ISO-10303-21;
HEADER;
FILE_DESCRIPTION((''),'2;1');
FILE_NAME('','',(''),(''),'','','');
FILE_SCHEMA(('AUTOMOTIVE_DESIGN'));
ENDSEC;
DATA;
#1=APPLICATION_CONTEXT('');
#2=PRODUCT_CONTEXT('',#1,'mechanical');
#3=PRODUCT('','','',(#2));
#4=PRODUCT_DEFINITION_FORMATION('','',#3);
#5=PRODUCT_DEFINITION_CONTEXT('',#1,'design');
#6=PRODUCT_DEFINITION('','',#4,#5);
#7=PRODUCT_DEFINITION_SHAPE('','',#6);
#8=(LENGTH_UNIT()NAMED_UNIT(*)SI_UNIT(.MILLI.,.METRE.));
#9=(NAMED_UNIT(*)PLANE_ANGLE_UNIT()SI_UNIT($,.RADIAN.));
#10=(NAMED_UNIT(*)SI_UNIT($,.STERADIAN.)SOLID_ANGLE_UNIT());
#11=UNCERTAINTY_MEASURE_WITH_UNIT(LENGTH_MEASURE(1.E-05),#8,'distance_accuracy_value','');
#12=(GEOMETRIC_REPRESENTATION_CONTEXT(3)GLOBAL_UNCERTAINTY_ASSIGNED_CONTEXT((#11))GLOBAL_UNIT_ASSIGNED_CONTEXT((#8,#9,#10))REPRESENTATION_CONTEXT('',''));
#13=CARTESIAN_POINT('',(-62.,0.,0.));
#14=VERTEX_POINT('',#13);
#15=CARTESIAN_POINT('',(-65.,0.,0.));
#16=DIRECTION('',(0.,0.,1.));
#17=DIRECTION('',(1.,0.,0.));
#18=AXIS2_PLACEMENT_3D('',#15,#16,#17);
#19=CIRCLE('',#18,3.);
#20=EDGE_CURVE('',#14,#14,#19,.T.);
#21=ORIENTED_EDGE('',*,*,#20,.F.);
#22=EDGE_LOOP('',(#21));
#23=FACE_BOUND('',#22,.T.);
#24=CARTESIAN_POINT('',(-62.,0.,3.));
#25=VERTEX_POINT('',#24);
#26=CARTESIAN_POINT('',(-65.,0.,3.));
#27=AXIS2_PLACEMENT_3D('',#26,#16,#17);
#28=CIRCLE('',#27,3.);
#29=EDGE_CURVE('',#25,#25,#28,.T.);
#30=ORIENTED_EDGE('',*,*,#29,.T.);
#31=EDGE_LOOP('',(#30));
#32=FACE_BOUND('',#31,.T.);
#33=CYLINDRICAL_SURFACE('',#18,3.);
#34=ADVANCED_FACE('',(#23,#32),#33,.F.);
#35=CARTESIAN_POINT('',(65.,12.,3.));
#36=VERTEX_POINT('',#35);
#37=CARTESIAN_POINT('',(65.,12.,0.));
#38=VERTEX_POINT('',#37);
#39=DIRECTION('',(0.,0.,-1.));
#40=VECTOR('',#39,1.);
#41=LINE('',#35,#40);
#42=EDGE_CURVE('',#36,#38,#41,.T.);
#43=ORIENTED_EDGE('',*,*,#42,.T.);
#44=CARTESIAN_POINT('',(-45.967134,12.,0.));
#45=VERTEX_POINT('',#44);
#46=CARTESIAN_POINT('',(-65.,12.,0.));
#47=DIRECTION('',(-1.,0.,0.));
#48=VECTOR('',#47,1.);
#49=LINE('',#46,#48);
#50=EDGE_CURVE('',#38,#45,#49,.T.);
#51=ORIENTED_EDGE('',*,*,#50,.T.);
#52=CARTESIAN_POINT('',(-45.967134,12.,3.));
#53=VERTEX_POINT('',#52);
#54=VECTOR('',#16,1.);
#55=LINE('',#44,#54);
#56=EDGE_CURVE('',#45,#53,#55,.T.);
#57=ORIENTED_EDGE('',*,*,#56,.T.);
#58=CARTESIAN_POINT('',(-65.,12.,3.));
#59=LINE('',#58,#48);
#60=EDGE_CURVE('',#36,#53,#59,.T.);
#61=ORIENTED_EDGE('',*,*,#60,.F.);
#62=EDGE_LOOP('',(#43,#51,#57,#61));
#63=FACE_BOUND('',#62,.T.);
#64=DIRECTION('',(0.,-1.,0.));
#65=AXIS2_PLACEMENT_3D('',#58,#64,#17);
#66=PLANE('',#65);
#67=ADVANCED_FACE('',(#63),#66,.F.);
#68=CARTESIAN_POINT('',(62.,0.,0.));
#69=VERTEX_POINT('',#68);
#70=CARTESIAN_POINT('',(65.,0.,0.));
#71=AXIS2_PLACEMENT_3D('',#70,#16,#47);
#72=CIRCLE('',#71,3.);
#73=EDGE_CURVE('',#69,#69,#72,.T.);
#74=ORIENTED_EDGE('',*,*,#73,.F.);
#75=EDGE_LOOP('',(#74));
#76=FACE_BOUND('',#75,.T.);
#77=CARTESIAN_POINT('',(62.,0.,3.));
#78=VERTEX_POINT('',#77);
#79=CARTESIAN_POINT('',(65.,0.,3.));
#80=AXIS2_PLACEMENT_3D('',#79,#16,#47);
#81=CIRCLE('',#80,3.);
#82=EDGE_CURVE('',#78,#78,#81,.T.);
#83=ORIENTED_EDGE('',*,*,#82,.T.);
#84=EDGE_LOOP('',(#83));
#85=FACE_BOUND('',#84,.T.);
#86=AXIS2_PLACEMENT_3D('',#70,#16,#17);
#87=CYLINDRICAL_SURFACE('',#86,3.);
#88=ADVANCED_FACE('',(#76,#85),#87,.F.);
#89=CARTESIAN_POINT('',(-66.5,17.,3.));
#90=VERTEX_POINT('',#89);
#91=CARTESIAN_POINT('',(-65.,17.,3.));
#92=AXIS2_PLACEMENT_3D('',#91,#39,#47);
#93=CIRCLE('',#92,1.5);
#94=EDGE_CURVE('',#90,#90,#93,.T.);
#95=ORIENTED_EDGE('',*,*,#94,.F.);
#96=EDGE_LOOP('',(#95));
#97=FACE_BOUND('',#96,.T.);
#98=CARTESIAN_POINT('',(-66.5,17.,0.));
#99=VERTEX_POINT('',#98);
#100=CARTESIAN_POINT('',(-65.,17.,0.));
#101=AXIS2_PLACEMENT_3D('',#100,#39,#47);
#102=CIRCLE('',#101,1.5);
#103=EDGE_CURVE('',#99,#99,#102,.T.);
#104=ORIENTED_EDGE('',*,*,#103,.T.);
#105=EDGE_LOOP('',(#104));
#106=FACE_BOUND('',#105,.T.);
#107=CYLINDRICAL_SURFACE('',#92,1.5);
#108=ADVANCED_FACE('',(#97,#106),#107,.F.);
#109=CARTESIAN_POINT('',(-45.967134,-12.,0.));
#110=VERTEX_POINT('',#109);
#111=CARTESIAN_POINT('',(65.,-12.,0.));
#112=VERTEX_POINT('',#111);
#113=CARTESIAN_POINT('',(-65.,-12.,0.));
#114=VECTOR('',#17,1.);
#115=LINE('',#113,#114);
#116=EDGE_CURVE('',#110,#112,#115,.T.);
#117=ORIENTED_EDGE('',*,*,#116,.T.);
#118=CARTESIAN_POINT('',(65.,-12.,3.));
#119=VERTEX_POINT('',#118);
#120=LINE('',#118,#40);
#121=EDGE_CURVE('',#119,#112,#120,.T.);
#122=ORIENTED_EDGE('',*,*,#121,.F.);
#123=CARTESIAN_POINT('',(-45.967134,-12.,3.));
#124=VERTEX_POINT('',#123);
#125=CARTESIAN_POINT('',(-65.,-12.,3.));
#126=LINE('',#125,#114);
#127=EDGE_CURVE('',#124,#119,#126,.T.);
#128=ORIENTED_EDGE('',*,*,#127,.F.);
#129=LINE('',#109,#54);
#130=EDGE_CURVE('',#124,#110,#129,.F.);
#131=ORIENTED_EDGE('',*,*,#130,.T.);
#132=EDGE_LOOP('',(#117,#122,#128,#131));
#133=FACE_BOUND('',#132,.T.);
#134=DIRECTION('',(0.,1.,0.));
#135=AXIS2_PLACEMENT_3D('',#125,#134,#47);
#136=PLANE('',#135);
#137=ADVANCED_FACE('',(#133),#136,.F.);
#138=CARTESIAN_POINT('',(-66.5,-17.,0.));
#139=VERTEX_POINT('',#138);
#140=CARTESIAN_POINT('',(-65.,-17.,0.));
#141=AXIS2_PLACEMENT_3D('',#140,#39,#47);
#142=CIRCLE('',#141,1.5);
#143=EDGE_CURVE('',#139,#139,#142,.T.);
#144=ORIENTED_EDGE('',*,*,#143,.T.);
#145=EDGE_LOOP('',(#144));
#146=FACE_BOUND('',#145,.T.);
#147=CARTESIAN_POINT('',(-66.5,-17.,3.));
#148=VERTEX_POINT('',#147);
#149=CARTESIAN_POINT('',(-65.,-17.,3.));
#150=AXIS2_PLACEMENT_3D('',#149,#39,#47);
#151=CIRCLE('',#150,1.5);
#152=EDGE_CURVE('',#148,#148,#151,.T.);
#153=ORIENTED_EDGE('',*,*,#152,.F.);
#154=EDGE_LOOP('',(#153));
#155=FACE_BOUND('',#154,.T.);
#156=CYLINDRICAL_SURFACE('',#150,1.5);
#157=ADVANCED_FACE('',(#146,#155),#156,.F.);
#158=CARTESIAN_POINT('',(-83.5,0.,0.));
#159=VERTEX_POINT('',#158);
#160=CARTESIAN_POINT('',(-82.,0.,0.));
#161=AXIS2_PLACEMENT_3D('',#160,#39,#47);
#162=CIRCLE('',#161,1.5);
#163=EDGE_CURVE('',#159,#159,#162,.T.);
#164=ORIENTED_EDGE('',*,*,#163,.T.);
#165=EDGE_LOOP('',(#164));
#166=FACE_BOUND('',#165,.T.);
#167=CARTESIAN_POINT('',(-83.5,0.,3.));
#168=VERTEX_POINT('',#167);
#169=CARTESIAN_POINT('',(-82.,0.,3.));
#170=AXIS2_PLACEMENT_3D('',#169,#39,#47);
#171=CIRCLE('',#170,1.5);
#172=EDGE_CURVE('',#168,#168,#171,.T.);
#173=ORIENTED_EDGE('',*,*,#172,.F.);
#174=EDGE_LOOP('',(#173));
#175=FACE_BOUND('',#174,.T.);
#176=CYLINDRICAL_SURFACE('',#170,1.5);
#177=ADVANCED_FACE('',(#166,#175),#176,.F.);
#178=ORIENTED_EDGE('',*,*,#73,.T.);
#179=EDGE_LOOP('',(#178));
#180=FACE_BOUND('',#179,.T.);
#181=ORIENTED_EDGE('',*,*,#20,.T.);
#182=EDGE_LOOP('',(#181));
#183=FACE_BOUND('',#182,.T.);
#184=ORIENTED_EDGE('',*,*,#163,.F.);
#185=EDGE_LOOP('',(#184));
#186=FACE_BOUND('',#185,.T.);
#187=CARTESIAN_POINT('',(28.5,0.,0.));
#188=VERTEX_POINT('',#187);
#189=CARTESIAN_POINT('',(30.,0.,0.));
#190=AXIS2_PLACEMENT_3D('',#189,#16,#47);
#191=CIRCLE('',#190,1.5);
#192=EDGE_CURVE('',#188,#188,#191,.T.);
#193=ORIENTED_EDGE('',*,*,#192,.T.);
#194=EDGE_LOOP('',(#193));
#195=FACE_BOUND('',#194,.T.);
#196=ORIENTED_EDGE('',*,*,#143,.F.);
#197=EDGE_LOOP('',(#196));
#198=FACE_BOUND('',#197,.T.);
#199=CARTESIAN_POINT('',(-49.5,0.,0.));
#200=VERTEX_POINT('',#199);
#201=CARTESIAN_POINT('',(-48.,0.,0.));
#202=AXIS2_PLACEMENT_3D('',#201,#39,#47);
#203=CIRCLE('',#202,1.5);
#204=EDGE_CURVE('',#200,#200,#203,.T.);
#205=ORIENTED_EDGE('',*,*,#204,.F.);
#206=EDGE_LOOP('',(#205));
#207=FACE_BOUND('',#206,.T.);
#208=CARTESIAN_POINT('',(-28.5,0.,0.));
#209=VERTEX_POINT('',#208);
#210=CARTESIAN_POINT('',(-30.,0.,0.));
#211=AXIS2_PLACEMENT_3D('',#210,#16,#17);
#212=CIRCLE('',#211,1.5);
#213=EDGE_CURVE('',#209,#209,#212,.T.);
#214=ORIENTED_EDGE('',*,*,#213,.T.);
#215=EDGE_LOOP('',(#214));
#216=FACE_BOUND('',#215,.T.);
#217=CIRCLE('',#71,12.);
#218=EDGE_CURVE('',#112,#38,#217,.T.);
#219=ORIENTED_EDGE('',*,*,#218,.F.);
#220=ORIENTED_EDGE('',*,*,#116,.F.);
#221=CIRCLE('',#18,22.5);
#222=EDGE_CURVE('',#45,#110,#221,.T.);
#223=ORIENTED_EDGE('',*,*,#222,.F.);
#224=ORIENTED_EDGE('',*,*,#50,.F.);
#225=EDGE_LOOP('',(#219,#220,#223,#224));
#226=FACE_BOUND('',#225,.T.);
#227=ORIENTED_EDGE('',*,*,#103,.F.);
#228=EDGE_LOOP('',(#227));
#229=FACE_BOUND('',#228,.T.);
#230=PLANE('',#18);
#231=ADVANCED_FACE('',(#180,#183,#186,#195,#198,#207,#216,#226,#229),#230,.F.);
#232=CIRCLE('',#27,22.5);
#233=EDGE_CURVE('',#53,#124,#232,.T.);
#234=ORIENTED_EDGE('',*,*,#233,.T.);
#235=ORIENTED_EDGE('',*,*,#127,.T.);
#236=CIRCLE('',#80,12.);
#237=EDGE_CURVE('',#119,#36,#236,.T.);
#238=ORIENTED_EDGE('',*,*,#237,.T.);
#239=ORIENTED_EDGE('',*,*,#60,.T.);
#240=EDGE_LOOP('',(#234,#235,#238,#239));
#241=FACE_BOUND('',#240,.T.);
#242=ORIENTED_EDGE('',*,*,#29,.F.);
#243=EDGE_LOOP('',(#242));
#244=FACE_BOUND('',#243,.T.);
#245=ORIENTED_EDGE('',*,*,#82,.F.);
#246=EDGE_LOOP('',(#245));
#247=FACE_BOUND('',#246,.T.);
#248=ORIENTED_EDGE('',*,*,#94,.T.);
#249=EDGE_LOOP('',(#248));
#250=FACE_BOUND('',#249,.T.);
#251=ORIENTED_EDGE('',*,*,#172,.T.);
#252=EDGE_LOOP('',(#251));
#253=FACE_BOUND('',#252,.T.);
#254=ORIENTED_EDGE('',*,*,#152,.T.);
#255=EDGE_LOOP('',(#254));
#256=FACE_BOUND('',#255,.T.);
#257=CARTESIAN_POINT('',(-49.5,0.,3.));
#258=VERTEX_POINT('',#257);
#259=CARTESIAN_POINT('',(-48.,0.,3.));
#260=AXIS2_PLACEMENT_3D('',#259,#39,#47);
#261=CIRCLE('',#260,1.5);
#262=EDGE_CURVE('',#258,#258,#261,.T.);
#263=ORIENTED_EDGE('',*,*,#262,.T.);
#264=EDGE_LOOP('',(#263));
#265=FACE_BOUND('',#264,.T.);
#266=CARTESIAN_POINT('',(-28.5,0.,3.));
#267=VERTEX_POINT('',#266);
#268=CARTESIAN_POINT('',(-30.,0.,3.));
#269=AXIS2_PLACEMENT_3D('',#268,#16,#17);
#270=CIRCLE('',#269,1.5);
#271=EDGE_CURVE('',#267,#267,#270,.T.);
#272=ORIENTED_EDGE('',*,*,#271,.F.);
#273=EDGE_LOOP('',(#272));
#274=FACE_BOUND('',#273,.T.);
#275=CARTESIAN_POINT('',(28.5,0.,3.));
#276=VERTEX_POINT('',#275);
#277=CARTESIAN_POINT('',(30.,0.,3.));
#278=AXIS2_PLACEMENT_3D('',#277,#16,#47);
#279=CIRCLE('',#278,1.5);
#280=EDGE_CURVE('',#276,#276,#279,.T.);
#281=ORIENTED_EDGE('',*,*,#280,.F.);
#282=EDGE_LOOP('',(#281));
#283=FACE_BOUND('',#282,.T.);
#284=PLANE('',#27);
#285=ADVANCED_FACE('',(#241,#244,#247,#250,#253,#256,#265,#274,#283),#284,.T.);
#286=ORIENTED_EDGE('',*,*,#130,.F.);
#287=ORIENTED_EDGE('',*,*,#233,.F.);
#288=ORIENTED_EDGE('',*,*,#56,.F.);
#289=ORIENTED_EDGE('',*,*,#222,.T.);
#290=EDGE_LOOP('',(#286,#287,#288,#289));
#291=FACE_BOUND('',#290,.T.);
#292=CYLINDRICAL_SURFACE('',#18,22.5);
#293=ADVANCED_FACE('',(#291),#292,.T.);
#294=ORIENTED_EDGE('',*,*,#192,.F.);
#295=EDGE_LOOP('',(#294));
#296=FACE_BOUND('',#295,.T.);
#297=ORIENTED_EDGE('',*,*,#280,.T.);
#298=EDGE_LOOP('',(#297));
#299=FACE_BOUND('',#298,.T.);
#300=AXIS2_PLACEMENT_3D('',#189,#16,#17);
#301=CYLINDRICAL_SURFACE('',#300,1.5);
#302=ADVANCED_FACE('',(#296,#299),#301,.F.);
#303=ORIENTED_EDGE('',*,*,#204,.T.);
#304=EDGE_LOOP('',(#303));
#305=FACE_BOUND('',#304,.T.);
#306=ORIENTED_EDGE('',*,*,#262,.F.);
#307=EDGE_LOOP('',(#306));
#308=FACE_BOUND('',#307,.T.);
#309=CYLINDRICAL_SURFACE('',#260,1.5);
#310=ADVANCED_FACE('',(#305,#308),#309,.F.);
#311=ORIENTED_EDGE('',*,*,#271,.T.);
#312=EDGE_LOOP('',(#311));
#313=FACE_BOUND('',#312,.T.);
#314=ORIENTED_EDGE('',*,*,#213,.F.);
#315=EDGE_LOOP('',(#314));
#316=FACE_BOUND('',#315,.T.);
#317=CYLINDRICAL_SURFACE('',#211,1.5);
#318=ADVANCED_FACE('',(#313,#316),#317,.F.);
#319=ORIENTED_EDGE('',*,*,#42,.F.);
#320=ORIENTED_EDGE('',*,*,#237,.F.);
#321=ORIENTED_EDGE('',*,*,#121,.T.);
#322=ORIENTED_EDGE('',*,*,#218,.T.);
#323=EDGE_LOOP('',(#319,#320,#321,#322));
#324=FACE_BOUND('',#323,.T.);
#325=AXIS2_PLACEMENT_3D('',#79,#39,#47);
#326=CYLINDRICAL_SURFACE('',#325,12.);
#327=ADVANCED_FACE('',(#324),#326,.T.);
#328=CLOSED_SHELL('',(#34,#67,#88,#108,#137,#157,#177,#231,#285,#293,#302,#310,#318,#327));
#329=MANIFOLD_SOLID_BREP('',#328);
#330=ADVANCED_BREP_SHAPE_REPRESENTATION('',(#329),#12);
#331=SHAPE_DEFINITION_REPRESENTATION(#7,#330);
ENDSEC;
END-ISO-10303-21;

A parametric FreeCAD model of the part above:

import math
import FreeCAD as App
import Part
import Sketcher
from FreeCAD import Vector
Q = App.Units.Quantity

doc = App.newDocument("Part")
body = doc.addObject("PartDesign::Body", "Body")

# Sketch on XY plane
sketch1 = body.newObject("Sketcher::SketchObject", "Sketch")
sketch1.AttachmentSupport = (doc.getObject("XY_Plane"), [""])
sketch1.MapMode = "FlatFace"
sketch1.addGeometry(Part.LineSegment(Vector(65, 12, 0), Vector(-65, 12, 0)), False)
sketch1.addGeometry(Part.ArcOfCircle(Part.Circle(Vector(-65, 0, 0), Vector(0, 0, 1), 12), math.radians(90), math.radians(270)), False)
sketch1.addGeometry(Part.LineSegment(Vector(-65, -12, 0), Vector(65, -12, 0)), False)
sketch1.addGeometry(Part.ArcOfCircle(Part.Circle(Vector(65, 0, 0), Vector(0, 0, 1), 12), math.radians(-90), math.radians(90)), False)
sketch1.addConstraint(Sketcher.Constraint("Tangent", 0, 2, 1, 1))
sketch1.addConstraint(Sketcher.Constraint("Tangent", 1, 2, 2, 1))
sketch1.addConstraint(Sketcher.Constraint("Tangent", 2, 2, 3, 1))
sketch1.addConstraint(Sketcher.Constraint("Tangent", 3, 2, 0, 1))
sketch1.addConstraint(Sketcher.Constraint("Horizontal", 0))
sketch1.addConstraint(Sketcher.Constraint("Horizontal", 2))
sketch1.addConstraint(Sketcher.Constraint("Symmetric", 1, 3, 3, 3, -1, 1))
sketch1.addConstraint(Sketcher.Constraint("Radius", 1, Q("12 mm")))
sketch1.addConstraint(Sketcher.Constraint("DistanceX", 0, 2, 0, 1, Q("130 mm")))
pad1 = body.newObject("PartDesign::Pad", "Pad")
pad1.Profile = sketch1
pad1.Length = 3

# Sketch on XY plane
sketch2 = body.newObject("Sketcher::SketchObject", "Sketch001")
sketch2.AttachmentSupport = (doc.getObject("XY_Plane"), [""])
sketch2.MapMode = "FlatFace"
sketch2.AttachmentOffset = App.Placement(Vector(0, 0, 3), App.Rotation())
sketch2.addGeometry(Part.Circle(Vector(-65, 0, 0), Vector(0, 0, 1), 3), False)
sketch2.addGeometry(Part.Circle(Vector(65, 0, 0), Vector(0, 0, 1), 3), False)
sketch2.addGeometry(Part.Circle(Vector(-30, 0, 0), Vector(0, 0, 1), 1.5), False)
sketch2.addGeometry(Part.Circle(Vector(30, 0, 0), Vector(0, 0, 1), 1.5), False)
sketch2.addConstraint(Sketcher.Constraint("Equal", 0, 1))
sketch2.addConstraint(Sketcher.Constraint("Equal", 2, 3))
sketch2.addConstraint(Sketcher.Constraint("Symmetric", 0, 3, 1, 3, -1, 1))
sketch2.addConstraint(Sketcher.Constraint("Symmetric", 2, 3, 3, 3, -1, 1))
sketch2.addConstraint(Sketcher.Constraint("PointOnObject", 0, 3, -1))
sketch2.addConstraint(Sketcher.Constraint("PointOnObject", 2, 3, -1))
sketch2.addConstraint(Sketcher.Constraint("Diameter", 0, Q("6 mm")))
sketch2.addConstraint(Sketcher.Constraint("Diameter", 2, Q("3 mm")))
sketch2.addConstraint(Sketcher.Constraint("DistanceX", 0, 3, -1, 1, Q("65 mm")))
sketch2.addConstraint(Sketcher.Constraint("DistanceX", 2, 3, -1, 1, Q("30 mm")))
pocket1 = body.newObject("PartDesign::Pocket", "Pocket")
pocket1.Profile = sketch2
pocket1.Type = "ThroughAll"

# Sketch on XY plane
sketch3 = body.newObject("Sketcher::SketchObject", "Sketch002")
sketch3.AttachmentSupport = (doc.getObject("XY_Plane"), [""])
sketch3.MapMode = "FlatFace"
sketch3.AttachmentOffset = App.Placement(Vector(0, 0, 3), App.Rotation())
sketch3.addGeometry(Part.Circle(Vector(-65, 0, 0), Vector(0, 0, 1), 22.5), False)
sketch3.addGeometry(Part.Circle(Vector(-65, 0, 0), Vector(0, 0, 1), 3), False)
sketch3.addConstraint(Sketcher.Constraint("Coincident", 1, 3, 0, 3))
sketch3.addConstraint(Sketcher.Constraint("PointOnObject", 0, 3, -1))
sketch3.addConstraint(Sketcher.Constraint("Diameter", 0, Q("45 mm")))
sketch3.addConstraint(Sketcher.Constraint("Diameter", 1, Q("6 mm")))
sketch3.addConstraint(Sketcher.Constraint("DistanceX", 0, 3, -1, 1, Q("65 mm")))
pad2 = body.newObject("PartDesign::Pad", "Pad001")
pad2.Profile = sketch3
pad2.Length = 3
pad2.Reversed = True

# Sketch on XY plane
sketch4 = body.newObject("Sketcher::SketchObject", "Sketch003")
sketch4.AttachmentSupport = (doc.getObject("XY_Plane"), [""])
sketch4.MapMode = "FlatFace"
sketch4.addGeometry(Part.Circle(Vector(-65, 17, 0), Vector(0, 0, 1), 1.5), False)
sketch4.addGeometry(Part.Circle(Vector(-82, 0, 0), Vector(0, 0, 1), 1.5), False)
sketch4.addGeometry(Part.Circle(Vector(-65, -17, 0), Vector(0, 0, 1), 1.5), False)
sketch4.addGeometry(Part.Circle(Vector(-48, 0, 0), Vector(0, 0, 1), 1.5), False)
sketch4.addConstraint(Sketcher.Constraint("Equal", 0, 1))
sketch4.addConstraint(Sketcher.Constraint("Equal", 1, 2))
sketch4.addConstraint(Sketcher.Constraint("Equal", 2, 3))
sketch4.addConstraint(Sketcher.Constraint("Symmetric", 0, 3, 2, 3, -1))
sketch4.addConstraint(Sketcher.Constraint("PointOnObject", 1, 3, -1))
sketch4.addConstraint(Sketcher.Constraint("PointOnObject", 3, 3, -1))
sketch4.addConstraint(Sketcher.Constraint("Diameter", 0, Q("3 mm")))
sketch4.addConstraint(Sketcher.Constraint("DistanceX", 0, 3, -1, 1, Q("65 mm")))
sketch4.addConstraint(Sketcher.Constraint("DistanceY", -1, 1, 0, 3, Q("17 mm")))
sketch4.addConstraint(Sketcher.Constraint("DistanceX", 1, 3, -1, 1, Q("82 mm")))
sketch4.addConstraint(Sketcher.Constraint("DistanceX", 3, 3, -1, 1, Q("48 mm")))
pocket2 = body.newObject("PartDesign::Pocket", "Pocket001")
pocket2.Profile = sketch4
pocket2.Type = "ThroughAll"
pocket2.Reversed = True

doc.recompute()
